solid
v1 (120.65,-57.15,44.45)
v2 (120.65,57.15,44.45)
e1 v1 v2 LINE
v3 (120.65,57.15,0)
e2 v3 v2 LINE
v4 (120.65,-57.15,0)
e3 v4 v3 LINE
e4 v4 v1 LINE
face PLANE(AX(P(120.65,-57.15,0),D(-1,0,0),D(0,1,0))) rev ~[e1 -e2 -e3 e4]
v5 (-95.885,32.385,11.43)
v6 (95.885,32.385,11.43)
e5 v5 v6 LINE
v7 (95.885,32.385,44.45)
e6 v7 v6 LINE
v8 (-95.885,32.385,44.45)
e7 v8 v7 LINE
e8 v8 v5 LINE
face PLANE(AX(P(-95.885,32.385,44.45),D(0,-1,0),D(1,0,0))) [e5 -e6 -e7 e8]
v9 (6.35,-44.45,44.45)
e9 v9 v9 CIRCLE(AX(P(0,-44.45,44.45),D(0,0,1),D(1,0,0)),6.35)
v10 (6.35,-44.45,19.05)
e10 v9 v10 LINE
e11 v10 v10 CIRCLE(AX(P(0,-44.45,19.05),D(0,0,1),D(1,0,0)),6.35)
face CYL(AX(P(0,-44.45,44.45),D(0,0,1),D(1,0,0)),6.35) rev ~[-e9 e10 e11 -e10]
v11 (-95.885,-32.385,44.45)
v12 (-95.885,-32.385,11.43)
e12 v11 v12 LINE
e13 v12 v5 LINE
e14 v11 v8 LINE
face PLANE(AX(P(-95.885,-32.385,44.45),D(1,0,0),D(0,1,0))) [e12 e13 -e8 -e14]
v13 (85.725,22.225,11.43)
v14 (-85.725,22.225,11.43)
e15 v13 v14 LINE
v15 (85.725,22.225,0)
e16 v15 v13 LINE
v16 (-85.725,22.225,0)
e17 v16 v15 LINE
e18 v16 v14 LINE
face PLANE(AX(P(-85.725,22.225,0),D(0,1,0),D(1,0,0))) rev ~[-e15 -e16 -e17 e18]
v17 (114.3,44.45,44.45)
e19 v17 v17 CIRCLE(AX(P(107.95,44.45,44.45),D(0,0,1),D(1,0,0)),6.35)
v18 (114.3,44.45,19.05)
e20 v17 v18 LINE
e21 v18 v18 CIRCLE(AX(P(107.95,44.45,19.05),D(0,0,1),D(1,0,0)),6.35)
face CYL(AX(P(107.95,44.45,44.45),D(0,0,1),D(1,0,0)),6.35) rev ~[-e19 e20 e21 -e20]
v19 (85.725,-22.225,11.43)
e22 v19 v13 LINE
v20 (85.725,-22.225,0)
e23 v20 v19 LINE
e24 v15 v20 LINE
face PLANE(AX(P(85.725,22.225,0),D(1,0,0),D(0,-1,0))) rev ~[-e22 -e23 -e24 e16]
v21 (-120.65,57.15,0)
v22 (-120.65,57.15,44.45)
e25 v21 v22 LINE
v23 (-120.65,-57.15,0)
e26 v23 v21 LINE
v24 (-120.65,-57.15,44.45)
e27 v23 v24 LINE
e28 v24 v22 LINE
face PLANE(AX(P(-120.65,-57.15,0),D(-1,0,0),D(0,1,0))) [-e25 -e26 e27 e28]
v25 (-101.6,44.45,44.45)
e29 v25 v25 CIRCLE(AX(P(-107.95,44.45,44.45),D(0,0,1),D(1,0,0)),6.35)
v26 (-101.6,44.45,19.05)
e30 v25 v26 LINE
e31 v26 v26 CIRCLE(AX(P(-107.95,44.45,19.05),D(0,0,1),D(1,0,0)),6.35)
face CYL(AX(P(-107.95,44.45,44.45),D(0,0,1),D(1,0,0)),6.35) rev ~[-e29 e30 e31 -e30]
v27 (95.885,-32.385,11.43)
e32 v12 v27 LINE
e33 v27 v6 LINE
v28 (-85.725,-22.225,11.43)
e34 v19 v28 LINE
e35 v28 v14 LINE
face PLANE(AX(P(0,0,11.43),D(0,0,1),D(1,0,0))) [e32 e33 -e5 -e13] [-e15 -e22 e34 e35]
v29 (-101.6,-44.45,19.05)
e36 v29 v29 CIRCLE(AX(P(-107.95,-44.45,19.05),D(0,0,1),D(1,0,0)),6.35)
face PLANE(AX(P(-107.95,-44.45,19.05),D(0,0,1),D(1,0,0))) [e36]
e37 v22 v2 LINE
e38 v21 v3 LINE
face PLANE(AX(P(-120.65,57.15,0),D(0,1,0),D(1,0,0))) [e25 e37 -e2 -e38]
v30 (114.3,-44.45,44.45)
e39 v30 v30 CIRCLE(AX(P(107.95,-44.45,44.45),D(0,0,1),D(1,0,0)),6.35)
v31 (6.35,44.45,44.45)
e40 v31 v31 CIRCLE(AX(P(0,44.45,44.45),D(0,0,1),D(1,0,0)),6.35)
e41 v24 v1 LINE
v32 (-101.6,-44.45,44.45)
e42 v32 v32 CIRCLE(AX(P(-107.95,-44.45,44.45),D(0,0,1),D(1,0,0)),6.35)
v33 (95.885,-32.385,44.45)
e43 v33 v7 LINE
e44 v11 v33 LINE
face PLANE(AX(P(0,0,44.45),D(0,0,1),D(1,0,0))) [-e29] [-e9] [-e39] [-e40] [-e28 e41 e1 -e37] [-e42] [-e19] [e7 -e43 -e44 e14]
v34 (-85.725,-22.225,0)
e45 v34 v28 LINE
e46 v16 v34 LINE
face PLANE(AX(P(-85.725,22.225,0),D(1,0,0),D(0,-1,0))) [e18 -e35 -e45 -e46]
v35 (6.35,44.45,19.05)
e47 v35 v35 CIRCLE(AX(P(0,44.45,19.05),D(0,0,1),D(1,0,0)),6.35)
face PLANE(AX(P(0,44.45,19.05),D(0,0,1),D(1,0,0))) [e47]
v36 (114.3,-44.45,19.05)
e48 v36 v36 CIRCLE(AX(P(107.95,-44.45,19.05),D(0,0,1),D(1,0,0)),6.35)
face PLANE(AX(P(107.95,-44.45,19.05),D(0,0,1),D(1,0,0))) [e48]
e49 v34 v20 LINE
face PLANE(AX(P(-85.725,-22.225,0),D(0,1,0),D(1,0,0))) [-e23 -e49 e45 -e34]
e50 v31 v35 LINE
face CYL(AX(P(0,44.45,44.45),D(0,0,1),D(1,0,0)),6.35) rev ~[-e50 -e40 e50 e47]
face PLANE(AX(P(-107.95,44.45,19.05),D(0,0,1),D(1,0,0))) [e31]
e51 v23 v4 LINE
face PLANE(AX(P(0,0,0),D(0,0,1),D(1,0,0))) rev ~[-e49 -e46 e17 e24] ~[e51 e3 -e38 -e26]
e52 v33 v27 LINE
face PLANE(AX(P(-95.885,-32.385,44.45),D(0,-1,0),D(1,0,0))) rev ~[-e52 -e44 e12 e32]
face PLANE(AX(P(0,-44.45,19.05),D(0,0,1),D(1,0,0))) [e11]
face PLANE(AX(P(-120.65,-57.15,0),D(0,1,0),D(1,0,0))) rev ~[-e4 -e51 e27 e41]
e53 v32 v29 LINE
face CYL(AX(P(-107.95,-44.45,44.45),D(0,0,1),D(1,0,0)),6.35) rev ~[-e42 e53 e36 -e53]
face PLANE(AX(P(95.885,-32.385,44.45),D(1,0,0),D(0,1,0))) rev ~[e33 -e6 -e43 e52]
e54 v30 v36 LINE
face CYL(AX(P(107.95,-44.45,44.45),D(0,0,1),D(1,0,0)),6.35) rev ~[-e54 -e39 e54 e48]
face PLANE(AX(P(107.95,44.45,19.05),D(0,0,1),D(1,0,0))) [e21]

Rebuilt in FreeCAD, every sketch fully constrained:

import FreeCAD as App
import Part
import Sketcher
Q = App.Units.Quantity


def add_polygon(sketch, points):
    """Adds a closed chain of lines whose ends are joined by coincident constraints."""
    first, n = sketch.GeometryCount, len(points)
    for a, b in zip(points, points[1:] + points[:1]):
        sketch.addGeometry(Part.LineSegment(App.Vector(*a, 0), App.Vector(*b, 0)), False)
    for i in range(n):
        sketch.addConstraint(Sketcher.Constraint("Coincident", first + i, 2, first + (i + 1) % n, 1))

doc = App.newDocument("Part")
body = doc.addObject("PartDesign::Body", "Body")

sketch1 = doc.addObject("Sketcher::SketchObject", "Sketch")
body.addObject(sketch1)
sketch1.AttachmentSupport = (doc.XY_Plane, [""])
sketch1.MapMode = "FlatFace"
add_polygon(sketch1, [(-121, 57), (-121, -57), (121, -57), (121, 57)])
sketch1.addConstraint([
    Sketcher.Constraint("Vertical", 0),
    Sketcher.Constraint("Horizontal", 1),
    Sketcher.Constraint("Vertical", 2),
    Sketcher.Constraint("Horizontal", 3),
    Sketcher.Constraint("Symmetric", 0, 2, 2, 2, -1, 1),
    Sketcher.Constraint("DistanceX", 1, 1, 1, 2, Q("9.5 in")),
    Sketcher.Constraint("DistanceY", 0, 2, 0, 1, Q("4.5 in")),
])
pad1 = doc.addObject("PartDesign::Pad", "Pad")
body.addObject(pad1)
pad1.Profile = sketch1
pad1.Length = Q("1.75 in")

sketch2 = doc.addObject("Sketcher::SketchObject", "Sketch001")
body.addObject(sketch2)
sketch2.AttachmentSupport = (doc.XY_Plane, [""])
sketch2.MapMode = "FlatFace"
sketch2.AttachmentOffset = App.Placement(App.Vector(0, 0, 1.75 * 25.4), App.Rotation())
add_polygon(sketch2, [(-96, 32), (-96, -32), (96, -32), (96, 32)])
sketch2.addConstraint([
    Sketcher.Constraint("Vertical", 0),
    Sketcher.Constraint("Horizontal", 1),
    Sketcher.Constraint("Vertical", 2),
    Sketcher.Constraint("Horizontal", 3),
    Sketcher.Constraint("Symmetric", 0, 2, 2, 2, -1, 1),
    Sketcher.Constraint("DistanceX", 1, 1, 1, 2, Q("7.55 in")),
    Sketcher.Constraint("DistanceY", 0, 2, 0, 1, Q("2.55 in")),
])
pocket1 = doc.addObject("PartDesign::Pocket", "Pocket")
body.addObject(pocket1)
pocket1.Profile = sketch2
pocket1.Length = Q("1.3 in")

sketch3 = doc.addObject("Sketcher::SketchObject", "Sketch002")
body.addObject(sketch3)
sketch3.AttachmentSupport = (doc.XY_Plane, [""])
sketch3.MapMode = "FlatFace"
add_polygon(sketch3, [(-86, -22), (-86, 22), (86, 22), (86, -22)])
sketch3.addConstraint([
    Sketcher.Constraint("Vertical", 0),
    Sketcher.Constraint("Horizontal", 1),
    Sketcher.Constraint("Vertical", 2),
    Sketcher.Constraint("Horizontal", 3),
    Sketcher.Constraint("Symmetric", 0, 2, 2, 2, -1, 1),
    Sketcher.Constraint("DistanceX", 1, 1, 1, 2, Q("6.75 in")),
    Sketcher.Constraint("DistanceY", 0, 1, 0, 2, Q("1.75 in")),
])
pocket2 = doc.addObject("PartDesign::Pocket", "Pocket001")
body.addObject(pocket2)
pocket2.Profile = sketch3
pocket2.Length = Q("1 in")
pocket2.Reversed = True

sketch4 = doc.addObject("Sketcher::SketchObject", "Sketch003")
body.addObject(sketch4)
sketch4.AttachmentSupport = (doc.XY_Plane, [""])
sketch4.MapMode = "FlatFace"
sketch4.AttachmentOffset = App.Placement(App.Vector(0, 0, 1.75 * 25.4), App.Rotation())
sketch4.addGeometry([
    Part.Circle(App.Vector(-108, 44, 0), App.Vector(0, 0, 1), 6),
    Part.Circle(App.Vector(0, 44, 0), App.Vector(0, 0, 1), 6),
    Part.Circle(App.Vector(108, 44, 0), App.Vector(0, 0, 1), 6),
    Part.Circle(App.Vector(108, -44, 0), App.Vector(0, 0, 1), 6),
    Part.Circle(App.Vector(0, -44, 0), App.Vector(0, 0, 1), 6),
    Part.Circle(App.Vector(-108, -44, 0), App.Vector(0, 0, 1), 6),
], False)
sketch4.addConstraint([
    Sketcher.Constraint("Equal", 0, 1),
    Sketcher.Constraint("Equal", 1, 2),
    Sketcher.Constraint("Equal", 2, 3),
    Sketcher.Constraint("Equal", 3, 4),
    Sketcher.Constraint("Equal", 4, 5),
    Sketcher.Constraint("Symmetric", 0, 3, 3, 3, -1, 1),
    Sketcher.Constraint("Symmetric", 1, 3, 4, 3, -1, 1),
    Sketcher.Constraint("Symmetric", 2, 3, 5, 3, -1, 1),
    Sketcher.Constraint("Symmetric", 0, 3, 2, 3, -2),
    Sketcher.Constraint("PointOnObject", 1, 3, -2),
    Sketcher.Constraint("Horizontal", 0, 3, 1, 3),
    Sketcher.Constraint("Diameter", 0, Q("0.5 in")),
    Sketcher.Constraint("DistanceX", 0, 3, 2, 3, Q("8.5 in")),
    Sketcher.Constraint("DistanceY", 3, 3, 2, 3, Q("3.5 in")),
])
pocket3 = doc.addObject("PartDesign::Pocket", "Pocket002")
body.addObject(pocket3)
pocket3.Profile = sketch4
pocket3.Length = Q("1 in")

doc.recompute()
